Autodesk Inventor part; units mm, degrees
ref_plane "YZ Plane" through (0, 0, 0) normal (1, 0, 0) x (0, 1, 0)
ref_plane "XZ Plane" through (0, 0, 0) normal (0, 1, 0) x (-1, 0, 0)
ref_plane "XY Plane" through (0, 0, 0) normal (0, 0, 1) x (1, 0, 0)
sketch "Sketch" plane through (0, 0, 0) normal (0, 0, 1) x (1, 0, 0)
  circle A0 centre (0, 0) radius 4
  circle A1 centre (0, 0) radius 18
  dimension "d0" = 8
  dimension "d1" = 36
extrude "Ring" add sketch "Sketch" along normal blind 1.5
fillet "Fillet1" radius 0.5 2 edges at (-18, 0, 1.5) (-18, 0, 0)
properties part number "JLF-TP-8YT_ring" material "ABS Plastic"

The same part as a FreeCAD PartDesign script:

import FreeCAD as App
import Part
import Sketcher

V = App.Vector


def edges_at(feature, points):
    """Names of the edges that pass closest to the given points."""
    edges = feature.Shape.Edges
    near = lambda p: min(range(len(edges)), key=lambda i: edges[i].distToShape(Part.Vertex(*p))[0])
    return sorted({f"Edge{near(p) + 1}" for p in points})

doc = App.newDocument("Part")
params = doc.addObject("Spreadsheet::Sheet", "Params")
for row, (alias, value) in enumerate([
    ("sketch1_diameter", "36 mm"),
    ("sketch1_diameter2", "8 mm"),
    ("pad1_length", "1.5 mm"),
    ("fillet_radius", "0.5 mm"),
], start=1):
    params.set(f"A{row}", alias)
    params.set(f"B{row}", "=" + value)
    params.setAlias(f"B{row}", alias)

body = doc.addObject("PartDesign::Body", "Body")

sketch1 = body.newObject("Sketcher::SketchObject", "Sketch")
sketch1.AttachmentSupport = (doc.getObject("XY_Plane"), [""])
sketch1.MapMode = "FlatFace"
sketch1.addGeometry([
    Part.Circle(V(0, 0, 0), V(0, 0, 1), 18),
    Part.Circle(V(0, 0, 0), V(0, 0, 1), 4),
], False)
sketch1.addConstraint([
    Sketcher.Constraint("Coincident", 0, 3, -1, 1),
    Sketcher.Constraint("Coincident", 1, 3, -1, 1),
    Sketcher.Constraint("Diameter", 0, 36.0),
    Sketcher.Constraint("Diameter", 1, 8.0),
])
sketch1.setExpression("Constraints[2]", "Params.sketch1_diameter")
sketch1.setExpression("Constraints[3]", "Params.sketch1_diameter2")
pad1 = body.newObject("PartDesign::Pad", "Pad")
pad1.Profile = sketch1
pad1.setExpression("Length", "Params.pad1_length")
doc.recompute()

fillet = body.newObject("PartDesign::Fillet", "Fillet")
fillet.Base = (pad1, edges_at(pad1, [(-18, 0, 1.5), (-18, 0, 0)]))
fillet.setExpression("Radius", "Params.fillet_radius")

doc.recompute()
